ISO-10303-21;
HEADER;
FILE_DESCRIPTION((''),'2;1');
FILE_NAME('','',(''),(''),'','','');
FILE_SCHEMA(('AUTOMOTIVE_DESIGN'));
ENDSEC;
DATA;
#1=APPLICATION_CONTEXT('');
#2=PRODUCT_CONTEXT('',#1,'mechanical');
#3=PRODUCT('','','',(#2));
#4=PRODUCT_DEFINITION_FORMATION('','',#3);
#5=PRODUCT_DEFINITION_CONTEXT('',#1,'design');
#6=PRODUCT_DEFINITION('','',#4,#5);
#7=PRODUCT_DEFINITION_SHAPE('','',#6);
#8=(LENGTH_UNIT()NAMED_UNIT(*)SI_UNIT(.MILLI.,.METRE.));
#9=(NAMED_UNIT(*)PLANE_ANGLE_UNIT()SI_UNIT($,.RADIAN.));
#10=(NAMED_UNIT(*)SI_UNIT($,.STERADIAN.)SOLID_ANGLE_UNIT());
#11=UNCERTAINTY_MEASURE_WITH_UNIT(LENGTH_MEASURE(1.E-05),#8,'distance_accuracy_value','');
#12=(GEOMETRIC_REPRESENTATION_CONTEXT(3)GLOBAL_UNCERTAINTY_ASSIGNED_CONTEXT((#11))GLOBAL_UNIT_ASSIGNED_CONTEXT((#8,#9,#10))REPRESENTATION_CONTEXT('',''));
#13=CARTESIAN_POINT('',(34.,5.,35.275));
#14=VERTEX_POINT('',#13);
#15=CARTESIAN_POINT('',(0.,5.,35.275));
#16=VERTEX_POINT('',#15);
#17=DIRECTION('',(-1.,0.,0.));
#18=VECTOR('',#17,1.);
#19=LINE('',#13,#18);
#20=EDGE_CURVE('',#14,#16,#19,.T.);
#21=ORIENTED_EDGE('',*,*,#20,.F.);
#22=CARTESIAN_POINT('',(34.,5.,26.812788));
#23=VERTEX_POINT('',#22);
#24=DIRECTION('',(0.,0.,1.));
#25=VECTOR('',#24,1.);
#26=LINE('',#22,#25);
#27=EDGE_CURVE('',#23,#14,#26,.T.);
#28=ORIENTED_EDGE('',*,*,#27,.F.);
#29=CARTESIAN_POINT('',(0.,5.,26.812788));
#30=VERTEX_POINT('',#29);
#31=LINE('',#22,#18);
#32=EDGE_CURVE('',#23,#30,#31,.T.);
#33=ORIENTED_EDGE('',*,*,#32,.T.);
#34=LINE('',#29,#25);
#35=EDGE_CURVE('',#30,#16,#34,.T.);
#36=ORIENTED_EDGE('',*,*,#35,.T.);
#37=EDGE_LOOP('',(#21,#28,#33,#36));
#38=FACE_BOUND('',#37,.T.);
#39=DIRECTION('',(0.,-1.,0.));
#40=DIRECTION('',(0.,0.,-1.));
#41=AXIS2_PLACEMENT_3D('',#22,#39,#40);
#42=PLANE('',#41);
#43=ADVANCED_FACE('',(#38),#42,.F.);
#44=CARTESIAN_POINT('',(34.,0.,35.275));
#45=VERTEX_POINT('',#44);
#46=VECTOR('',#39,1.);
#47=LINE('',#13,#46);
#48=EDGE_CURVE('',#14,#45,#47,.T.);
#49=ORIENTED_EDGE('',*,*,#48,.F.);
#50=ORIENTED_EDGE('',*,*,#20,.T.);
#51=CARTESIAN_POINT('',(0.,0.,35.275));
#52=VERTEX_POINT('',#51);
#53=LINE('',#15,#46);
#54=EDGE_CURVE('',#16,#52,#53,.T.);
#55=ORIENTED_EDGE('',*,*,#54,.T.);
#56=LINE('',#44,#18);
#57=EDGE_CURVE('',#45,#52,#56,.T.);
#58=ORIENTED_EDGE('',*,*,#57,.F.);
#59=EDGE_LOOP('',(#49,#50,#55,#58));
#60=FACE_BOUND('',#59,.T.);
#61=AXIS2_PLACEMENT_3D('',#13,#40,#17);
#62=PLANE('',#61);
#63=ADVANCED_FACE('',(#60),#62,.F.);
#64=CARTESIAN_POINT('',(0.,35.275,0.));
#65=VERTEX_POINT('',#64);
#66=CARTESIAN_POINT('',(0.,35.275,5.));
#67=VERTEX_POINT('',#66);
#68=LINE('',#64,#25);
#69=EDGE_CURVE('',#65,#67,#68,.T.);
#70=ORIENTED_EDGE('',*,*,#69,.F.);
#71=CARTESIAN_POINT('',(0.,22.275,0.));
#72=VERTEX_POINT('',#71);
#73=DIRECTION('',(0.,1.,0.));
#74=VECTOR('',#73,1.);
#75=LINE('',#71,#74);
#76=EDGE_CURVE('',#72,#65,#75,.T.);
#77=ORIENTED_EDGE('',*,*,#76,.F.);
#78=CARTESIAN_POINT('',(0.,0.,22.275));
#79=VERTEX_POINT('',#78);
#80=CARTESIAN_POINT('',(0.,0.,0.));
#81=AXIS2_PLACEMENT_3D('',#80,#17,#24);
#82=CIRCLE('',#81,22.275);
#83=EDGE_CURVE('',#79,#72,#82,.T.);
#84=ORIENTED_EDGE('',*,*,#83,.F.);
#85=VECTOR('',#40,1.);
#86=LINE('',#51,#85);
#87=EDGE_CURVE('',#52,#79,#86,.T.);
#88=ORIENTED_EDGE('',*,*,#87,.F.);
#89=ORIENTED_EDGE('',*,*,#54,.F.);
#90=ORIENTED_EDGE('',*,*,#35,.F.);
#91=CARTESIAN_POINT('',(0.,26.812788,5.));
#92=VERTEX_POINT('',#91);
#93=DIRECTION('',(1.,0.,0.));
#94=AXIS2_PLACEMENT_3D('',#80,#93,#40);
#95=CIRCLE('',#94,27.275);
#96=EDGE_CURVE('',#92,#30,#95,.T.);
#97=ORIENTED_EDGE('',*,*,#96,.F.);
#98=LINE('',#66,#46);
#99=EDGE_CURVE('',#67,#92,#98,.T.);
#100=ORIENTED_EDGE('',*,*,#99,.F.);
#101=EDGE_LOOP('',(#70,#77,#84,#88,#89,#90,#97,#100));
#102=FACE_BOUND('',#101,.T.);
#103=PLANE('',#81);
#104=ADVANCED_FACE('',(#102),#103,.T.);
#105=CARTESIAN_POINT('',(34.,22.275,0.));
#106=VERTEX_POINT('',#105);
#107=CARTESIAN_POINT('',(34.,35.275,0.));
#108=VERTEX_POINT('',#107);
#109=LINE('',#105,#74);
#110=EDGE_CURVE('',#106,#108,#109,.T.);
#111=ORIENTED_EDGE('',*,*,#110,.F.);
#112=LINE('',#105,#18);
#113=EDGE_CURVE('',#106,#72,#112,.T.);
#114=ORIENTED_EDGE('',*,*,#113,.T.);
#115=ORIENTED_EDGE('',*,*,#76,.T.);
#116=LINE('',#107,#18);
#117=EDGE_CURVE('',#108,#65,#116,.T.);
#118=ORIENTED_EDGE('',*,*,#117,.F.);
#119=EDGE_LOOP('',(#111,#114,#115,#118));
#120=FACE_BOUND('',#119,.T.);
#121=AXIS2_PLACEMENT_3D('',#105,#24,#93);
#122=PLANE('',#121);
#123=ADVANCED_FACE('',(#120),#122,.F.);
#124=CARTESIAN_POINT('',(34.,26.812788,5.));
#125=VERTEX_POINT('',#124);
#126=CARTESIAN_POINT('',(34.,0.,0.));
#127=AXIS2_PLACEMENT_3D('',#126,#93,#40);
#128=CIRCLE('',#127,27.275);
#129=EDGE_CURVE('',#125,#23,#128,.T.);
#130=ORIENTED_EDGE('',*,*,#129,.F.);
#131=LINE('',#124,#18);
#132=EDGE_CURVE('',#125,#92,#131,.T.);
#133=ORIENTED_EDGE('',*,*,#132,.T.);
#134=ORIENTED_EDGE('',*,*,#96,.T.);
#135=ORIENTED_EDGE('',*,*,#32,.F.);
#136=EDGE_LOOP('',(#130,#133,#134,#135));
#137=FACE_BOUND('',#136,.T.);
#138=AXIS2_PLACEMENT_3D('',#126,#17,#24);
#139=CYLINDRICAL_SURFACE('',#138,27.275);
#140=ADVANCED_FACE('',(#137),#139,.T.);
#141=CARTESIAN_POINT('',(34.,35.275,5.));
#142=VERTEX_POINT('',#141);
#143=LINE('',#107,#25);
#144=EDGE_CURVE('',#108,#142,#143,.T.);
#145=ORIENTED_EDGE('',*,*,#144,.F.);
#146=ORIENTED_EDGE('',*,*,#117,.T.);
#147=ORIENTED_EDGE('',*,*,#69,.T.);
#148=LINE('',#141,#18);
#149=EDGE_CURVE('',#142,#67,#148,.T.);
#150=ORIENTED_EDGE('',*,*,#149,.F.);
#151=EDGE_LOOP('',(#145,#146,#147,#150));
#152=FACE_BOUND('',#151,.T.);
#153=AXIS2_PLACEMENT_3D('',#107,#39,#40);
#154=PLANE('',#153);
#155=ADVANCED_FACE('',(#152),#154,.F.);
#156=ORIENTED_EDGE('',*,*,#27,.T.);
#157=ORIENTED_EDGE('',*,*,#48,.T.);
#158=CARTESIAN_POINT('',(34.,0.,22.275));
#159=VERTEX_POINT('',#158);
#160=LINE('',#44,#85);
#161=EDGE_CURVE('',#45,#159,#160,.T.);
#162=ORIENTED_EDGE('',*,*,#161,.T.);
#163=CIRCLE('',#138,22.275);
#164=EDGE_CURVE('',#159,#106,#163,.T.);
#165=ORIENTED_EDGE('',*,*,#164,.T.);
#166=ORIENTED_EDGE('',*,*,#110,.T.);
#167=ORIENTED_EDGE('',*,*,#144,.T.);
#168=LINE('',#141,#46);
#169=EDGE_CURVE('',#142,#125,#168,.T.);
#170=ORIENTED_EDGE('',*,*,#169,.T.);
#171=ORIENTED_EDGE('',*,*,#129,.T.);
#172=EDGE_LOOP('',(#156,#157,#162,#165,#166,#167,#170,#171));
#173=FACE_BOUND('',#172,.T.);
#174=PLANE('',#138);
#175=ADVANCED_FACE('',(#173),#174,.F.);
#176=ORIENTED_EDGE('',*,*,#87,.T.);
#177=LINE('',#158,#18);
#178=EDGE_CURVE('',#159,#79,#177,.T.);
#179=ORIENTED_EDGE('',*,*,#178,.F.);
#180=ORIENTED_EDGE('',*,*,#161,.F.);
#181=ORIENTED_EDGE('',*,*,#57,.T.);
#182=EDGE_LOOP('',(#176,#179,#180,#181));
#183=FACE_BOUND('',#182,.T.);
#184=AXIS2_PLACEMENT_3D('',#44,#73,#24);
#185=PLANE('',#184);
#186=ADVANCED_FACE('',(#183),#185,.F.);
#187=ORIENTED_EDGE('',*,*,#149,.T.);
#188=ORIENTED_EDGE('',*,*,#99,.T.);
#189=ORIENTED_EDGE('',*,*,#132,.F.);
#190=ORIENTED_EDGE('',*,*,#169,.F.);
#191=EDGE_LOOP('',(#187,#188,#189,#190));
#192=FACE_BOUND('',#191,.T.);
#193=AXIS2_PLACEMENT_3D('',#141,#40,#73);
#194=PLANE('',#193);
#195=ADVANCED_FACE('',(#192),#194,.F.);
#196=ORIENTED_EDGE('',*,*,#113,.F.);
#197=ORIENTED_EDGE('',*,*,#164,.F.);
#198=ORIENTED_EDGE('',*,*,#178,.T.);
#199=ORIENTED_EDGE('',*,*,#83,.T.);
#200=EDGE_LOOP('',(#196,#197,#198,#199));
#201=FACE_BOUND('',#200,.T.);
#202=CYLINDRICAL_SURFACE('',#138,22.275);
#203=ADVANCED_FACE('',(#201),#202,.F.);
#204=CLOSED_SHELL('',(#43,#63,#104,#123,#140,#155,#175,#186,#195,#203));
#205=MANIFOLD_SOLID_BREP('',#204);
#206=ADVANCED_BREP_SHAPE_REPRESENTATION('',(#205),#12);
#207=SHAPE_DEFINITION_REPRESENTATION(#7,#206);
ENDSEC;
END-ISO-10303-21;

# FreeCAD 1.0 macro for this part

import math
import FreeCAD as App
import Part
import Sketcher
from FreeCAD import Vector

doc = App.newDocument("Part")
params = doc.addObject("Spreadsheet::Sheet", "Params")
for row, (alias, value) in enumerate([
    ("sketch1_width", "13 mm"),
    ("sketch1_width2", "5 mm"),
    ("pad1_length", "34 mm"),
], start=1):
    params.set(f"A{row}", alias)
    params.set(f"B{row}", "=" + value)
    params.setAlias(f"B{row}", alias)

body = doc.addObject("PartDesign::Body", "Body")

# Sketch on YZ plane
sketch1 = body.newObject("Sketcher::SketchObject", "Sketch")
sketch1.AttachmentSupport = (doc.getObject("YZ_Plane"), [""])
sketch1.MapMode = "FlatFace"
sketch1.addGeometry(Part.LineSegment(Vector(0, 35, 0), Vector(0, 22, 0)), False)
sketch1.addGeometry(Part.ArcOfCircle(Part.Circle(Vector(0, 0, 0), Vector(0, 0, 1), 22), math.radians(0), math.radians(90)), False)
sketch1.addGeometry(Part.LineSegment(Vector(22, 0, 0), Vector(35, 0, 0)), False)
sketch1.addGeometry(Part.LineSegment(Vector(35, 0, 0), Vector(35, 5, 0)), False)
sketch1.addGeometry(Part.LineSegment(Vector(35, 5, 0), Vector(27, 5, 0)), False)
sketch1.addGeometry(Part.ArcOfCircle(Part.Circle(Vector(0, 0, 0), Vector(0, 0, 1), 27), math.radians(11), math.radians(79)), False)
sketch1.addGeometry(Part.LineSegment(Vector(5, 27, 0), Vector(5, 35, 0)), False)
sketch1.addGeometry(Part.LineSegment(Vector(5, 35, 0), Vector(0, 35, 0)), False)
sketch1.addConstraint(Sketcher.Constraint("Coincident", 0, 2, 1, 2))
sketch1.addConstraint(Sketcher.Constraint("Coincident", 1, 1, 2, 1))
sketch1.addConstraint(Sketcher.Constraint("Coincident", 2, 2, 3, 1))
sketch1.addConstraint(Sketcher.Constraint("Coincident", 3, 2, 4, 1))
sketch1.addConstraint(Sketcher.Constraint("Coincident", 4, 2, 5, 1))
sketch1.addConstraint(Sketcher.Constraint("Coincident", 5, 2, 6, 1))
sketch1.addConstraint(Sketcher.Constraint("Coincident", 6, 2, 7, 1))
sketch1.addConstraint(Sketcher.Constraint("Coincident", 7, 2, 0, 1))
sketch1.addConstraint(Sketcher.Constraint("Vertical", 0))
sketch1.addConstraint(Sketcher.Constraint("Horizontal", 2))
sketch1.addConstraint(Sketcher.Constraint("Vertical", 3))
sketch1.addConstraint(Sketcher.Constraint("Horizontal", 4))
sketch1.addConstraint(Sketcher.Constraint("Vertical", 6))
sketch1.addConstraint(Sketcher.Constraint("Horizontal", 7))
sketch1.addConstraint(Sketcher.Constraint("Coincident", 1, 3, -1, 1))
sketch1.addConstraint(Sketcher.Constraint("Coincident", 5, 3, -1, 1))
sketch1.addConstraint(Sketcher.Constraint("PointOnObject", 0, 2, -2))
sketch1.addConstraint(Sketcher.Constraint("PointOnObject", 1, 1, -1))
sketch1.addConstraint(Sketcher.Constraint("Equal", 2, 0))
sketch1.addConstraint(Sketcher.Constraint("Equal", 7, 3))
sketch1.addConstraint(Sketcher.Constraint("DistanceX", 2, 1, 2, 2, 13.0))
sketch1.addConstraint(Sketcher.Constraint("DistanceX", 7, 2, 7, 1, 5.0))
sketch1.addConstraint(Sketcher.Constraint("Radius", 1, 22.275))
sketch1.addConstraint(Sketcher.Constraint("Radius", 5, 27.275))
sketch1.setExpression("Constraints[20]", "Params.sketch1_width")
sketch1.setExpression("Constraints[21]", "Params.sketch1_width2")
pad1 = body.newObject("PartDesign::Pad", "Pad")
pad1.Profile = sketch1
pad1.setExpression("Length", "Params.pad1_length")

doc.recompute()
